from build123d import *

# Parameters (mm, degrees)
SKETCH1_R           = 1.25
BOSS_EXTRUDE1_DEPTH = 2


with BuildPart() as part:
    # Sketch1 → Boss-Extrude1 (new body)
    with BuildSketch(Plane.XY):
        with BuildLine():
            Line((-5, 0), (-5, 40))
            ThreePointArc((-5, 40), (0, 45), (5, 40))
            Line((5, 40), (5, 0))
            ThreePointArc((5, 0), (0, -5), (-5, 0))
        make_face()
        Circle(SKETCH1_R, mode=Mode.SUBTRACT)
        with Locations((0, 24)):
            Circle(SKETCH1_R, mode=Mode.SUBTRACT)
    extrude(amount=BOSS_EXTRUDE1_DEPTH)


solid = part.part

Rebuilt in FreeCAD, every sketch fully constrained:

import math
import FreeCAD as App
import Part
import Sketcher

V = App.Vector

doc = App.newDocument("Part")
params = doc.addObject("Spreadsheet::Sheet", "Params")
for row, (alias, value) in enumerate([
    ("sketch1_radius", "5 mm"),
    ("sketch1_diameter", "2.5 mm"),
    ("sketch1_height", "40 mm"),
    ("pad1_length", "2 mm"),
], start=1):
    params.set(f"A{row}", alias)
    params.set(f"B{row}", "=" + value)
    params.setAlias(f"B{row}", alias)

body = doc.addObject("PartDesign::Body", "Body")

# Sketch on XY plane
sketch1 = body.newObject("Sketcher::SketchObject", "Sketch")
sketch1.AttachmentSupport = (doc.getObject("XY_Plane"), [""])
sketch1.MapMode = "FlatFace"
sketch1.addGeometry([
    Part.LineSegment(V(-5, 40, 0), V(-5, 0, 0)),  # 0
    Part.ArcOfCircle(Part.Circle(V(0, 0, 0), V(0, 0, 1), 5), math.radians(180), math.radians(360)),  # 1
    Part.LineSegment(V(5, 0, 0), V(5, 40, 0)),  # 2
    Part.ArcOfCircle(Part.Circle(V(0, 40, 0), V(0, 0, 1), 5), math.radians(0), math.radians(180)),  # 3
    Part.Circle(V(0, 0, 0), V(0, 0, 1), 1.25),  # 4
    Part.Circle(V(0, 24, 0), V(0, 0, 1), 1.25),  # 5
], False)
sketch1.addConstraint([
    Sketcher.Constraint("Tangent", 0, 2, 1, 1),
    Sketcher.Constraint("Tangent", 1, 2, 2, 1),
    Sketcher.Constraint("Tangent", 2, 2, 3, 1),
    Sketcher.Constraint("Tangent", 3, 2, 0, 1),
    Sketcher.Constraint("Vertical", 0),
    Sketcher.Constraint("Vertical", 2),
    Sketcher.Constraint("Coincident", 1, 3, -1, 1),
    Sketcher.Constraint("Coincident", 4, 3, -1, 1),
    Sketcher.Constraint("Equal", 4, 5),
    Sketcher.Constraint("PointOnObject", 5, 3, -2),
    Sketcher.Constraint("Radius", 1, 5.0),
    Sketcher.Constraint("Diameter", 4, 2.5),
    Sketcher.Constraint("DistanceY", 0, 2, 0, 1, 40.0),
    Sketcher.Constraint("DistanceY", -1, 1, 5, 3, 24.0),
])
sketch1.setExpression("Constraints[10]", "Params.sketch1_radius")
sketch1.setExpression("Constraints[11]", "Params.sketch1_diameter")
sketch1.setExpression("Constraints[12]", "Params.sketch1_height")
pad1 = body.newObject("PartDesign::Pad", "Pad")
pad1.Profile = sketch1
pad1.setExpression("Length", "Params.pad1_length")

doc.recompute()
